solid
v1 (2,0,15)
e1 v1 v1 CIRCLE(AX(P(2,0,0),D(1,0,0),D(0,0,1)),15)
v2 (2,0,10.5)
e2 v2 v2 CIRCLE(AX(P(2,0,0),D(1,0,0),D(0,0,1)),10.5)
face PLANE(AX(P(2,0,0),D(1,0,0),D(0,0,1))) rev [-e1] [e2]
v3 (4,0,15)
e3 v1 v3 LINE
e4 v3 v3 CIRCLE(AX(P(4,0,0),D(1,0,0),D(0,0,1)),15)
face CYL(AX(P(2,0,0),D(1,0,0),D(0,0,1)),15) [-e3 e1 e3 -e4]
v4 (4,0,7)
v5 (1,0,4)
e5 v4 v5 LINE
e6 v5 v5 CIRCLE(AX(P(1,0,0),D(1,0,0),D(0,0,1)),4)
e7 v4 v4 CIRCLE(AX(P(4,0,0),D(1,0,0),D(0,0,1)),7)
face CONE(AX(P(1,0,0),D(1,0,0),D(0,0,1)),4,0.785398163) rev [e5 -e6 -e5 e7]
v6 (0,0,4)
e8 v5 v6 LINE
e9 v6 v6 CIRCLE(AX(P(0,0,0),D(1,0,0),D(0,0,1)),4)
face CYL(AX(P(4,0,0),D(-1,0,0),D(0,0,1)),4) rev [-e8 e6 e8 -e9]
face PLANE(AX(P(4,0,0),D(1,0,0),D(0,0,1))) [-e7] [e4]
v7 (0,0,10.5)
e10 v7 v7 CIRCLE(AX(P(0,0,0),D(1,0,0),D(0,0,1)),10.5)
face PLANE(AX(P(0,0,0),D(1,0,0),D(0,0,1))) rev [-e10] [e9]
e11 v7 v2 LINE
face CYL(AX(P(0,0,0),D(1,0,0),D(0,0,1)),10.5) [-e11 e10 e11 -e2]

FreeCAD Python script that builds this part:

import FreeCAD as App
import Part
import Sketcher
from FreeCAD import Vector


def edges_at(feature, points):
    """Names of the edges that pass closest to the given points."""
    edges = feature.Shape.Edges
    near = lambda p: min(range(len(edges)), key=lambda i: edges[i].distToShape(Part.Vertex(*p))[0])
    return sorted({f"Edge{near(p) + 1}" for p in points})


def add_polygon(sketch, points):
    """Adds a closed chain of lines whose ends are joined by coincident constraints."""
    first, n = sketch.GeometryCount, len(points)
    for a, b in zip(points, points[1:] + points[:1]):
        sketch.addGeometry(Part.LineSegment(App.Vector(*a, 0), App.Vector(*b, 0)), False)
    for i in range(n):
        sketch.addConstraint(Sketcher.Constraint("Coincident", first + i, 2, first + (i + 1) % n, 1))

doc = App.newDocument("Part")
body = doc.addObject("PartDesign::Body", "Body")

# Sketch on XZ plane
sketch1 = doc.addObject("Sketcher::SketchObject", "Sketch")
body.addObject(sketch1)
sketch1.AttachmentSupport = (doc.XZ_Plane, [""])
sketch1.MapMode = "FlatFace"
add_polygon(sketch1, [(0, 10.5), (0, 4), (4, 4), (4, 15), (2, 15), (2, 10.5)])  # lines 0-5
sketch1.addConstraint(Sketcher.Constraint("Vertical", 0))
sketch1.addConstraint(Sketcher.Constraint("Horizontal", 1))
sketch1.addConstraint(Sketcher.Constraint("Vertical", 2))
sketch1.addConstraint(Sketcher.Constraint("Horizontal", 3))
sketch1.addConstraint(Sketcher.Constraint("Vertical", 4))
sketch1.addConstraint(Sketcher.Constraint("Horizontal", 5))
sketch1.addConstraint(Sketcher.Constraint("PointOnObject", 0, 2, -2))
sketch1.addConstraint(Sketcher.Constraint("Equal", 3, 5))
sketch1.addConstraint(Sketcher.Constraint("DistanceX", 1, 1, 1, 2, 4.0))
sketch1.addConstraint(Sketcher.Constraint("DistanceY", 2, 1, 2, 2, 11.0))
sketch1.addConstraint(Sketcher.Constraint("DistanceY", 0, 2, 0, 1, 6.5))
sketch1.addConstraint(Sketcher.Constraint("DistanceY", -1, 1, 0, 2, 4.0))
revolution = doc.addObject("PartDesign::Revolution", "Revolution")
body.addObject(revolution)
revolution.Profile = sketch1
revolution.ReferenceAxis = (sketch1, ["H_Axis"])
revolution.Angle = 360
doc.recompute()

chamfer = doc.addObject("PartDesign::Chamfer", "Chamfer")
body.addObject(chamfer)
chamfer.Base = (revolution, edges_at(revolution, [(4, 0, -4)]))
chamfer.Size = 3

doc.recompute()
